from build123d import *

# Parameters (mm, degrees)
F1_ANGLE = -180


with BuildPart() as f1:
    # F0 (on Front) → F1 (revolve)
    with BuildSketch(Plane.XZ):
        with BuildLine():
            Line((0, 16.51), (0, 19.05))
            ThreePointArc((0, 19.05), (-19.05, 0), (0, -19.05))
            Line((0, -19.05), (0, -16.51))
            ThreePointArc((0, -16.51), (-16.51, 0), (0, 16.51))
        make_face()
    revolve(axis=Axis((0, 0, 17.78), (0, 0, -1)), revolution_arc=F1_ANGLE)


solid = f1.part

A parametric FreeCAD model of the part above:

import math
import FreeCAD as App
import Part
import Sketcher
from FreeCAD import Vector
Q = App.Units.Quantity

doc = App.newDocument("Part")
body = doc.addObject("PartDesign::Body", "Body")

sketch1 = body.newObject("Sketcher::SketchObject", "Sketch")
sketch1.AttachmentSupport = (doc.getObject("XZ_Plane"), [""])
sketch1.MapMode = "FlatFace"
sketch1.addGeometry([
    Part.LineSegment(Vector(0, 16.5, 0), Vector(0, 19.1, 0)),
    Part.ArcOfCircle(Part.Circle(Vector(0, 0, 0), Vector(0, 0, 1), 19.1), math.radians(90), math.radians(270)),
    Part.LineSegment(Vector(0, -19.1, 0), Vector(0, -16.5, 0)),
    Part.ArcOfCircle(Part.Circle(Vector(0, 0, 0), Vector(0, 0, 1), 16.5), math.radians(90), math.radians(270)),
], False)
sketch1.addConstraint([
    Sketcher.Constraint("Coincident", 0, 2, 1, 1),
    Sketcher.Constraint("Coincident", 1, 2, 2, 1),
    Sketcher.Constraint("Coincident", 2, 2, 3, 2),
    Sketcher.Constraint("Coincident", 3, 1, 0, 1),
    Sketcher.Constraint("Vertical", 0),
    Sketcher.Constraint("Vertical", 2),
    Sketcher.Constraint("Coincident", 1, 3, -1, 1),
    Sketcher.Constraint("Coincident", 3, 3, -1, 1),
    Sketcher.Constraint("PointOnObject", 0, 2, -2),
    Sketcher.Constraint("PointOnObject", 1, 2, -2),
    Sketcher.Constraint("Radius", 1, Q("0.75 in")),
    Sketcher.Constraint("Radius", 3, Q("0.65 in")),
])
revolution = body.newObject("PartDesign::Revolution", "Revolution")
revolution.Profile = sketch1
revolution.ReferenceAxis = (sketch1, ["V_Axis"])
revolution.Angle = 180

doc.recompute()
